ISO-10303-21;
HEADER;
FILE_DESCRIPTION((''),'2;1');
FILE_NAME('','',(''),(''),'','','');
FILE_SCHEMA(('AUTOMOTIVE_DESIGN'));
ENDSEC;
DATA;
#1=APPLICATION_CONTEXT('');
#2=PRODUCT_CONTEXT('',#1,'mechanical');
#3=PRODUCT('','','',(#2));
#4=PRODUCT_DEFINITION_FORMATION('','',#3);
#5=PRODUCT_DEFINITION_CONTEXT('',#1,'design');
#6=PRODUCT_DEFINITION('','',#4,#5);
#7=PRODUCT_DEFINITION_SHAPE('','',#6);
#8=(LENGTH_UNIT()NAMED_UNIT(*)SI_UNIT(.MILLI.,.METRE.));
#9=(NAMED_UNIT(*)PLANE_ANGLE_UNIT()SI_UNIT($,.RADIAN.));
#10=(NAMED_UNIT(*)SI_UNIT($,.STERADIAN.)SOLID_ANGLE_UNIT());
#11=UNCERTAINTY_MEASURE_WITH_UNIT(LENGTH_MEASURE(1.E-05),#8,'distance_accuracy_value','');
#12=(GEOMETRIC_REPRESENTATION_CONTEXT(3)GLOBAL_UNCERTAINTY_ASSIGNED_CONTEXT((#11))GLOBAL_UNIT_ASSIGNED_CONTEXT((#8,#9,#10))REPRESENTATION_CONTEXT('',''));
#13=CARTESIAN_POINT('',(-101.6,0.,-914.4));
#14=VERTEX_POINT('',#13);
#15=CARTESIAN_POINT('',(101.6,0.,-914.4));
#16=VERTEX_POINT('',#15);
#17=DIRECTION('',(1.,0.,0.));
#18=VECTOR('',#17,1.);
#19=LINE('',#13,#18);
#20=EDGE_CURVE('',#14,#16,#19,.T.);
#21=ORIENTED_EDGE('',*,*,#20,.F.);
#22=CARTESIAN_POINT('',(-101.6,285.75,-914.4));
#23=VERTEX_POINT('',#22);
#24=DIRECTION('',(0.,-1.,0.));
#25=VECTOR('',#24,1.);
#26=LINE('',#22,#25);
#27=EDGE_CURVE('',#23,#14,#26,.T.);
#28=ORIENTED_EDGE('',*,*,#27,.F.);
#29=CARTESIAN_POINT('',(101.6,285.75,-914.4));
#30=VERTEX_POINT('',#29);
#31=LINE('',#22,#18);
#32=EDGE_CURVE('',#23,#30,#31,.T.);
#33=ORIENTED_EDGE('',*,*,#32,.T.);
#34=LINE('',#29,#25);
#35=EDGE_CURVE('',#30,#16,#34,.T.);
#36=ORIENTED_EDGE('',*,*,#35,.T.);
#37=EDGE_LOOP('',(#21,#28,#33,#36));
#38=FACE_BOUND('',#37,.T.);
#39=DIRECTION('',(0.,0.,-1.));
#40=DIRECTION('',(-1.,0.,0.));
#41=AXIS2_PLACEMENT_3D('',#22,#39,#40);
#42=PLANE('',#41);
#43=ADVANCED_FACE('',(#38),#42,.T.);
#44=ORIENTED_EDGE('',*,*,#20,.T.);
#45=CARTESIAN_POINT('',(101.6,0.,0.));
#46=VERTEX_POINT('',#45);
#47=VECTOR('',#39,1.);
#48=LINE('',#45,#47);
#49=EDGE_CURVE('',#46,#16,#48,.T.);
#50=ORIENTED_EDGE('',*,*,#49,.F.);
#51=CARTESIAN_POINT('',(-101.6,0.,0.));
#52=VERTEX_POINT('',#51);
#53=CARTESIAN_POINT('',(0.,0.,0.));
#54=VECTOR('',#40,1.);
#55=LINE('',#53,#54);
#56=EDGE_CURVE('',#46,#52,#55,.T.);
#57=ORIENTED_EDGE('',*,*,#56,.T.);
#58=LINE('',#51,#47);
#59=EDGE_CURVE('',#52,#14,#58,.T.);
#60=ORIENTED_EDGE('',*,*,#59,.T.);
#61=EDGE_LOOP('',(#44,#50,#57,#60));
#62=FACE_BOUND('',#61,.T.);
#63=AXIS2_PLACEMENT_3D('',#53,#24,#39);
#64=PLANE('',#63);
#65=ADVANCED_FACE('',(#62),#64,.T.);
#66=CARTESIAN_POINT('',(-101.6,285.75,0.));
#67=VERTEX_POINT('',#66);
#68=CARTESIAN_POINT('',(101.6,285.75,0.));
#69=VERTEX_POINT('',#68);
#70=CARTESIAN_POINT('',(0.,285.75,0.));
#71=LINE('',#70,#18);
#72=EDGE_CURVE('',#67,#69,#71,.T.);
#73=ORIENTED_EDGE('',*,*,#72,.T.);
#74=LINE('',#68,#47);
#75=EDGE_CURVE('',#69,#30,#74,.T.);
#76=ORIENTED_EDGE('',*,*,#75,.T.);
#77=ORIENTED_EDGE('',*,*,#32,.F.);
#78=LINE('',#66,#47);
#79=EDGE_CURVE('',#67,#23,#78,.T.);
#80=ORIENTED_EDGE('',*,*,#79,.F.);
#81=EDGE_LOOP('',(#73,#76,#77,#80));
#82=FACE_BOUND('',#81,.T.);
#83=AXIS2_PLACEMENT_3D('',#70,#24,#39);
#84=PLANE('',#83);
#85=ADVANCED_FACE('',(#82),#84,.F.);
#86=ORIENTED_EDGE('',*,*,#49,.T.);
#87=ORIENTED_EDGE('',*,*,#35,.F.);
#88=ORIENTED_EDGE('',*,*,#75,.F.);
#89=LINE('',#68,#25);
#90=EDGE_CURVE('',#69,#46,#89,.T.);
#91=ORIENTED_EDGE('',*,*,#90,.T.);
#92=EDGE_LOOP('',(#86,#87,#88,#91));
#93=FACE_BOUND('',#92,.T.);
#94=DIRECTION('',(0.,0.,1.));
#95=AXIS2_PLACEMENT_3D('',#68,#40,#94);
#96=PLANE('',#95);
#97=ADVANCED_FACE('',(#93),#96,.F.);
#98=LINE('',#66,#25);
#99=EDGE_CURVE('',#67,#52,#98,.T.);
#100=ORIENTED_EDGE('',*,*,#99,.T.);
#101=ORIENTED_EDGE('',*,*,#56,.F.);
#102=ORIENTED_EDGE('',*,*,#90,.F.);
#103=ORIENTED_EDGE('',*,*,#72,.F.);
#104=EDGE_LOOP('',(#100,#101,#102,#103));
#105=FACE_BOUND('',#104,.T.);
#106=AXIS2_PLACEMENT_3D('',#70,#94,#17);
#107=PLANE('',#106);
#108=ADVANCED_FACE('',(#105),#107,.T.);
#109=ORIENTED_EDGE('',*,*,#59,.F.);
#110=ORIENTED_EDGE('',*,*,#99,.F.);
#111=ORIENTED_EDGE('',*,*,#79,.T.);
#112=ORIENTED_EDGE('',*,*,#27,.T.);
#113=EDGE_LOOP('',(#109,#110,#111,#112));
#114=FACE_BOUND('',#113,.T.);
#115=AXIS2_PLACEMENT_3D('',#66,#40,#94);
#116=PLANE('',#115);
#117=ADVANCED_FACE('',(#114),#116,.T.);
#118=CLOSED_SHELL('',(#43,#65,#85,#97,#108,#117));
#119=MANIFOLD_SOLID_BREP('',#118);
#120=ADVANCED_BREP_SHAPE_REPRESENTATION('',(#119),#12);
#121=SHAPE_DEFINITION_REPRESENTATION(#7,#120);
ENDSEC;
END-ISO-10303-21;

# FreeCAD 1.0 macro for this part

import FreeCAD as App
import Part
import Sketcher
from FreeCAD import Vector
Q = App.Units.Quantity

doc = App.newDocument("Part")
body = doc.addObject("PartDesign::Body", "Body")

sketch1 = body.newObject("Sketcher::SketchObject", "Sketch")
sketch1.AttachmentSupport = (doc.getObject("XZ_Plane"), [""])
sketch1.MapMode = "FlatFace"
sketch1.addGeometry([
    Part.LineSegment(Vector(102, 0, 0), Vector(102, -914, 0)),
    Part.LineSegment(Vector(102, -914, 0), Vector(-102, -914, 0)),
    Part.LineSegment(Vector(-102, -914, 0), Vector(-102, 0, 0)),
    Part.LineSegment(Vector(-102, 0, 0), Vector(102, 0, 0)),
], False)
sketch1.addConstraint([
    Sketcher.Constraint("Coincident", 0, 2, 1, 1),
    Sketcher.Constraint("Coincident", 1, 2, 2, 1),
    Sketcher.Constraint("Coincident", 2, 2, 3, 1),
    Sketcher.Constraint("Coincident", 3, 2, 0, 1),
    Sketcher.Constraint("Vertical", 0),
    Sketcher.Constraint("Horizontal", 1),
    Sketcher.Constraint("Vertical", 2),
    Sketcher.Constraint("Horizontal", 3),
    Sketcher.Constraint("Symmetric", 2, 2, 3, 2, -1, 1),
    Sketcher.Constraint("DistanceX", 1, 2, 1, 1, Q("8 in")),
    Sketcher.Constraint("DistanceY", 0, 2, 0, 1, Q("36 in")),
])
pad1 = body.newObject("PartDesign::Pad", "Pad")
pad1.Profile = sketch1
pad1.Length = Q("11.25 in")
pad1.Reversed = True

doc.recompute()
